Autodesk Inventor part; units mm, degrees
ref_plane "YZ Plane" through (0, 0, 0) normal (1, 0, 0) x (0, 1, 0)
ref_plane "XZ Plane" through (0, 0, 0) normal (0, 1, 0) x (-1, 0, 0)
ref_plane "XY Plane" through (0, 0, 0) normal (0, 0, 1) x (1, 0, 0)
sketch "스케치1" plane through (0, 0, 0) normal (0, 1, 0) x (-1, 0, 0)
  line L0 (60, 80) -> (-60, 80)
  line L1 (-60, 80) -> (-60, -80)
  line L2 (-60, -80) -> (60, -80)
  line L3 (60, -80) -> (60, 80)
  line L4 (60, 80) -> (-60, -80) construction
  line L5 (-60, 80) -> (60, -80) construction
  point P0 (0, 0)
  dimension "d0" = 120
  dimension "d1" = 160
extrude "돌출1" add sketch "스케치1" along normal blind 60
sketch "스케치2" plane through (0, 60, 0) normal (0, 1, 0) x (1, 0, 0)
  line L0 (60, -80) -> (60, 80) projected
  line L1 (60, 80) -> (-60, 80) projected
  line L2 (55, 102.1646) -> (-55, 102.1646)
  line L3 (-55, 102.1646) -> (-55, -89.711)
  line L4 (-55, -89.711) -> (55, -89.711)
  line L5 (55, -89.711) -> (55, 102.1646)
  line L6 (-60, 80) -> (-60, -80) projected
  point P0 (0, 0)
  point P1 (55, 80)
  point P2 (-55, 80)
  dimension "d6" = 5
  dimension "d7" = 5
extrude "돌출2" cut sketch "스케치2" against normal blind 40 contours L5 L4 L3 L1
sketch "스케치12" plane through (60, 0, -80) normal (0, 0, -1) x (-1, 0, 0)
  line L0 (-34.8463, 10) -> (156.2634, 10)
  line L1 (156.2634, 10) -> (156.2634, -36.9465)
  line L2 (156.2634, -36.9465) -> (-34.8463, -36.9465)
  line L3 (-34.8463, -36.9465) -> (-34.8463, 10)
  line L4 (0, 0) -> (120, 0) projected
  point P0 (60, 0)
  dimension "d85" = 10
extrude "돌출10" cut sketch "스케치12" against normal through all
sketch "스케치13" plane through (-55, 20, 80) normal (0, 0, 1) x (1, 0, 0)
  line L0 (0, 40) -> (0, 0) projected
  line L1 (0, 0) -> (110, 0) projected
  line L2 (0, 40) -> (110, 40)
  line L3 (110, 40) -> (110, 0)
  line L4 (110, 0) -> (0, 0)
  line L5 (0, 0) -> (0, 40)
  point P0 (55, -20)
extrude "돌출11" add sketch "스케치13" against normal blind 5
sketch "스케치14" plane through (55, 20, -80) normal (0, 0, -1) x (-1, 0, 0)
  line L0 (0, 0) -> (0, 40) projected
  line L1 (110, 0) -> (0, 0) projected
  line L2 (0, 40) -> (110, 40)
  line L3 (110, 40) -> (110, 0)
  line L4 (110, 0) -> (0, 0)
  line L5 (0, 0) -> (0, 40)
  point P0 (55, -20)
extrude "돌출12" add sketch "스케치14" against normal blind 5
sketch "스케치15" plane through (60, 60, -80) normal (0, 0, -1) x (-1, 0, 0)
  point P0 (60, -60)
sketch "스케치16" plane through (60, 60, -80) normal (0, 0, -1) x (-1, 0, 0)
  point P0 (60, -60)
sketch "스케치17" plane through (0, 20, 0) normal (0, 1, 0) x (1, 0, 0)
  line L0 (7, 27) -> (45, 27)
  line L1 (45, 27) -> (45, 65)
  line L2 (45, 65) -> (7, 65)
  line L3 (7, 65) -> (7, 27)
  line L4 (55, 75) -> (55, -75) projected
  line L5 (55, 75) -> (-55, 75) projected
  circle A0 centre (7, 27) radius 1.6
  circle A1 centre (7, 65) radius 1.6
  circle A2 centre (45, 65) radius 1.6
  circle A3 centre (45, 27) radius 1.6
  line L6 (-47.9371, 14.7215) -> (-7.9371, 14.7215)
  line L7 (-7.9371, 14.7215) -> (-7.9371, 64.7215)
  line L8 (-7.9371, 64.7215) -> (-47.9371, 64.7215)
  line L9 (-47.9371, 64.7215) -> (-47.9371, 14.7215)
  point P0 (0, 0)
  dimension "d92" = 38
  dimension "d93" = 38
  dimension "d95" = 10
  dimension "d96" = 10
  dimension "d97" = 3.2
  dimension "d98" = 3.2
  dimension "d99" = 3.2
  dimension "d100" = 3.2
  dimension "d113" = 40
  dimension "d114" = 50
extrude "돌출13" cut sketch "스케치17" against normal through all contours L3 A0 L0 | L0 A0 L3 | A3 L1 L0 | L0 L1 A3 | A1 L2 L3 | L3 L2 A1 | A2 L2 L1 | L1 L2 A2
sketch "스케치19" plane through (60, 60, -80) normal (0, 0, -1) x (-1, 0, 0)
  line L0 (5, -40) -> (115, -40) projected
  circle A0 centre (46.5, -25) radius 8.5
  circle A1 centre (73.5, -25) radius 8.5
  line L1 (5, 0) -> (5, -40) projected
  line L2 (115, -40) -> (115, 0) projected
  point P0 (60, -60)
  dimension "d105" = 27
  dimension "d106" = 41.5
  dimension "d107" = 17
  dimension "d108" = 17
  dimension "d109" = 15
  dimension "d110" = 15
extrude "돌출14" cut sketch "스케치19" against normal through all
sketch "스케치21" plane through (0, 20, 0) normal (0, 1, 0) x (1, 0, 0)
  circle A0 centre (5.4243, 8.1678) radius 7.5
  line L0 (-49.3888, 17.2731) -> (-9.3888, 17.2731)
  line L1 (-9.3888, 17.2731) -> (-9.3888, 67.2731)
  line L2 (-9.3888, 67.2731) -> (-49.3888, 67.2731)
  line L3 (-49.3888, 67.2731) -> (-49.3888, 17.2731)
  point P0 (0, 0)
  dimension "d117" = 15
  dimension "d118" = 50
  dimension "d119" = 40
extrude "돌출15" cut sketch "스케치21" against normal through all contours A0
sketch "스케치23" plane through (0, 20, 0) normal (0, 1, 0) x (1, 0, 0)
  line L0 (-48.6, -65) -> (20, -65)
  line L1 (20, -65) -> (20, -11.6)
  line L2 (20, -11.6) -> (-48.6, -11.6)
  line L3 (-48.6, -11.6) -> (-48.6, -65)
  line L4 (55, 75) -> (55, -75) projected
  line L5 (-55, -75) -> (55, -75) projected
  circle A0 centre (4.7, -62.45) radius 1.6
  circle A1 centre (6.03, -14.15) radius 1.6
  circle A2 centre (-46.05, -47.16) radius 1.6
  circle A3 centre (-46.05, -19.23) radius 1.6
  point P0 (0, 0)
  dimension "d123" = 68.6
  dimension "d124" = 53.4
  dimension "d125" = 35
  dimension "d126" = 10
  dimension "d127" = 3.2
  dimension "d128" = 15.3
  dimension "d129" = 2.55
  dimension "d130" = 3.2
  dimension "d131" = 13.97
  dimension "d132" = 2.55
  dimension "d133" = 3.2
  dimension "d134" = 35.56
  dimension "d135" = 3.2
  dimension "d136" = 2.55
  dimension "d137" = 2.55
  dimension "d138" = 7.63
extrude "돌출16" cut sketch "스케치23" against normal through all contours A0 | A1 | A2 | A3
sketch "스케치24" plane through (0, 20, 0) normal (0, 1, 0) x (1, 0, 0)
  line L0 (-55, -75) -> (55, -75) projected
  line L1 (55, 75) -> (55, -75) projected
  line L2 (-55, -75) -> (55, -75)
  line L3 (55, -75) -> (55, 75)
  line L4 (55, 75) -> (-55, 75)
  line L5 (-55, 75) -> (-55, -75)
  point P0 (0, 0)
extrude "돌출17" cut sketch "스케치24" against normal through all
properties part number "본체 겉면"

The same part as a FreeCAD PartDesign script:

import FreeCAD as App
import Part
import Sketcher

V = App.Vector


def add_polygon(sketch, points):
    """Adds a closed chain of lines whose ends are joined by coincident constraints."""
    first, n = sketch.GeometryCount, len(points)
    for a, b in zip(points, points[1:] + points[:1]):
        sketch.addGeometry(Part.LineSegment(App.Vector(*a, 0), App.Vector(*b, 0)), False)
    for i in range(n):
        sketch.addConstraint(Sketcher.Constraint("Coincident", first + i, 2, first + (i + 1) % n, 1))

doc = App.newDocument("Part")
body = doc.addObject("PartDesign::Body", "Body")

# Sketch on XZ plane
sketch1 = body.newObject("Sketcher::SketchObject", "Sketch")
sketch1.AttachmentSupport = (doc.getObject("XZ_Plane"), [""])
sketch1.MapMode = "FlatFace"
add_polygon(sketch1, [(-60, -80), (-60, 80), (60, 80), (60, -80)])  # lines 0-3
sketch1.addConstraint(Sketcher.Constraint("Vertical", 0))
sketch1.addConstraint(Sketcher.Constraint("Horizontal", 1))
sketch1.addConstraint(Sketcher.Constraint("Vertical", 2))
sketch1.addConstraint(Sketcher.Constraint("Horizontal", 3))
sketch1.addConstraint(Sketcher.Constraint("Symmetric", 0, 2, 2, 2, -1, 1))
sketch1.addConstraint(Sketcher.Constraint("DistanceX", 1, 1, 1, 2, 120.0))
sketch1.addConstraint(Sketcher.Constraint("DistanceY", 0, 1, 0, 2, 160.0))
pad1 = body.newObject("PartDesign::Pad", "Pad")
pad1.Profile = sketch1
pad1.Length = 60
pad1.Reversed = True

# Sketch on XZ plane
sketch2 = body.newObject("Sketcher::SketchObject", "Sketch001")
sketch2.AttachmentSupport = (doc.getObject("XZ_Plane"), [""])
sketch2.MapMode = "FlatFace"
sketch2.AttachmentOffset = App.Placement(V(0, 0, -60), App.Rotation())
add_polygon(sketch2, [(55, 90), (55, -80), (-55, -80), (-55, 90)])  # lines 0-3
sketch2.addConstraint(Sketcher.Constraint("Vertical", 0))
sketch2.addConstraint(Sketcher.Constraint("Horizontal", 1))
sketch2.addConstraint(Sketcher.Constraint("Vertical", 2))
sketch2.addConstraint(Sketcher.Constraint("Horizontal", 3))
sketch2.addConstraint(Sketcher.Constraint("DistanceX", 1, 2, 1, 1, 110.0))
sketch2.addConstraint(Sketcher.Constraint("DistanceX", -1, 1, 0, 2, 55.0))
sketch2.addConstraint(Sketcher.Constraint("DistanceY", 0, 2, -1, 1, 80.0))
sketch2.addConstraint(Sketcher.Constraint("DistanceY", 0, 2, 0, 1, 169.711))
pocket1 = body.newObject("PartDesign::Pocket", "Pocket")
pocket1.Profile = sketch2
pocket1.Length = 40
pocket1.Reversed = True

# Sketch on XY plane
sketch3 = body.newObject("Sketcher::SketchObject", "Sketch002")
sketch3.AttachmentSupport = (doc.getObject("XY_Plane"), [""])
sketch3.MapMode = "FlatFace"
sketch3.AttachmentOffset = App.Placement(V(0, 0, -80), App.Rotation())
add_polygon(sketch3, [(-96, 10), (95, 10), (95, -37), (-96, -37)])  # lines 0-3
sketch3.addConstraint(Sketcher.Constraint("Horizontal", 0))
sketch3.addConstraint(Sketcher.Constraint("Vertical", 1))
sketch3.addConstraint(Sketcher.Constraint("Horizontal", 2))
sketch3.addConstraint(Sketcher.Constraint("Vertical", 3))
sketch3.addConstraint(Sketcher.Constraint("DistanceY", -1, 1, 0, 2, 10.0))
sketch3.addConstraint(Sketcher.Constraint("DistanceX", 0, 1, 0, 2, 191.1097))
sketch3.addConstraint(Sketcher.Constraint("DistanceY", 1, 2, 1, 1, 46.9465))
sketch3.addConstraint(Sketcher.Constraint("DistanceX", -1, 1, 0, 2, 94.8463))
pocket2 = body.newObject("PartDesign::Pocket", "Pocket001")
pocket2.Profile = sketch3
pocket2.Type = "ThroughAll"
pocket2.Reversed = True

# Sketch on XY plane
sketch4 = body.newObject("Sketcher::SketchObject", "Sketch003")
sketch4.AttachmentSupport = (doc.getObject("XY_Plane"), [""])
sketch4.MapMode = "FlatFace"
sketch4.AttachmentOffset = App.Placement(V(0, 0, 80), App.Rotation())
add_polygon(sketch4, [(55, 60), (-55, 60), (-55, 20), (55, 20)])  # lines 0-3
sketch4.addConstraint(Sketcher.Constraint("Horizontal", 0))
sketch4.addConstraint(Sketcher.Constraint("Vertical", 1))
sketch4.addConstraint(Sketcher.Constraint("Horizontal", 2))
sketch4.addConstraint(Sketcher.Constraint("Vertical", 3))
sketch4.addConstraint(Sketcher.Constraint("DistanceX", 0, 2, 0, 1, 110.0))
sketch4.addConstraint(Sketcher.Constraint("DistanceY", 1, 2, 1, 1, 40.0))
sketch4.addConstraint(Sketcher.Constraint("DistanceX", 0, 2, -1, 1, 55.0))
sketch4.addConstraint(Sketcher.Constraint("DistanceY", -1, 1, 0, 2, 60.0))
pad2 = body.newObject("PartDesign::Pad", "Pad001")
pad2.Profile = sketch4
pad2.Length = 5
pad2.Reversed = True

# Sketch on XY plane
sketch5 = body.newObject("Sketcher::SketchObject", "Sketch004")
sketch5.AttachmentSupport = (doc.getObject("XY_Plane"), [""])
sketch5.MapMode = "FlatFace"
sketch5.AttachmentOffset = App.Placement(V(0, 0, -80), App.Rotation())
add_polygon(sketch5, [(55, 60), (55, 20), (-55, 20), (-55, 60)])  # lines 0-3
sketch5.addConstraint(Sketcher.Constraint("Vertical", 0))
sketch5.addConstraint(Sketcher.Constraint("Horizontal", 1))
sketch5.addConstraint(Sketcher.Constraint("Vertical", 2))
sketch5.addConstraint(Sketcher.Constraint("Horizontal", 3))
sketch5.addConstraint(Sketcher.Constraint("DistanceX", 1, 2, 1, 1, 110.0))
sketch5.addConstraint(Sketcher.Constraint("DistanceY", 0, 2, 0, 1, 40.0))
sketch5.addConstraint(Sketcher.Constraint("DistanceX", -1, 1, 0, 2, 55.0))
sketch5.addConstraint(Sketcher.Constraint("DistanceY", -1, 1, 0, 2, 20.0))
pad3 = body.newObject("PartDesign::Pad", "Pad002")
pad3.Profile = sketch5
pad3.Length = 5

# Sketch on XZ plane
sketch6 = body.newObject("Sketcher::SketchObject", "Sketch005")
sketch6.AttachmentSupport = (doc.getObject("XZ_Plane"), [""])
sketch6.MapMode = "FlatFace"
sketch6.AttachmentOffset = App.Placement(V(0, 0, -20), App.Rotation())
sketch6.addGeometry(Part.Circle(V(7, -27, 0), V(0, 0, 1), 1.6), False)
sketch6.addGeometry(Part.Circle(V(45, -27, 0), V(0, 0, 1), 1.6), False)
sketch6.addGeometry(Part.Circle(V(7, -65, 0), V(0, 0, 1), 1.6), False)
sketch6.addGeometry(Part.Circle(V(45, -65, 0), V(0, 0, 1), 1.6), False)
sketch6.addConstraint(Sketcher.Constraint("Equal", 0, 1))
sketch6.addConstraint(Sketcher.Constraint("Equal", 1, 2))
sketch6.addConstraint(Sketcher.Constraint("Equal", 2, 3))
sketch6.addConstraint(Sketcher.Constraint("Horizontal", 0, 3, 1, 3))
sketch6.addConstraint(Sketcher.Constraint("Horizontal", 2, 3, 3, 3))
sketch6.addConstraint(Sketcher.Constraint("Vertical", 0, 3, 2, 3))
sketch6.addConstraint(Sketcher.Constraint("Vertical", 1, 3, 3, 3))
sketch6.addConstraint(Sketcher.Constraint("Diameter", 0, 3.2))
sketch6.addConstraint(Sketcher.Constraint("DistanceX", 0, 3, 1, 3, 38.0))
sketch6.addConstraint(Sketcher.Constraint("DistanceY", 2, 3, 0, 3, 38.0))
sketch6.addConstraint(Sketcher.Constraint("DistanceX", -1, 1, 0, 3, 7.0))
sketch6.addConstraint(Sketcher.Constraint("DistanceY", 0, 3, -1, 1, 27.0))
pocket3 = body.newObject("PartDesign::Pocket", "Pocket002")
pocket3.Profile = sketch6
pocket3.Type = "ThroughAll"
pocket3.Reversed = True

# Sketch on XY plane
sketch7 = body.newObject("Sketcher::SketchObject", "Sketch006")
sketch7.AttachmentSupport = (doc.getObject("XY_Plane"), [""])
sketch7.MapMode = "FlatFace"
sketch7.AttachmentOffset = App.Placement(V(0, 0, -80), App.Rotation())
sketch7.addGeometry(Part.Circle(V(14, 35, 0), V(0, 0, 1), 8), False)
sketch7.addGeometry(Part.Circle(V(-14, 35, 0), V(0, 0, 1), 8), False)
sketch7.addConstraint(Sketcher.Constraint("Equal", 0, 1))
sketch7.addConstraint(Sketcher.Constraint("Symmetric", 0, 3, 1, 3, -2))
sketch7.addConstraint(Sketcher.Constraint("Diameter", 0, 17.0))
sketch7.addConstraint(Sketcher.Constraint("DistanceX", 1, 3, 0, 3, 27.0))
sketch7.addConstraint(Sketcher.Constraint("DistanceY", -1, 1, 0, 3, 35.0))
pocket4 = body.newObject("PartDesign::Pocket", "Pocket003")
pocket4.Profile = sketch7
pocket4.Type = "ThroughAll"
pocket4.Reversed = True

# Sketch on XZ plane
sketch8 = body.newObject("Sketcher::SketchObject", "Sketch007")
sketch8.AttachmentSupport = (doc.getObject("XZ_Plane"), [""])
sketch8.MapMode = "FlatFace"
sketch8.AttachmentOffset = App.Placement(V(0, 0, -20), App.Rotation())
sketch8.addGeometry(Part.Circle(V(5, -8, 0), V(0, 0, 1), 8), False)
sketch8.addConstraint(Sketcher.Constraint("Diameter", 0, 15.0))
sketch8.addConstraint(Sketcher.Constraint("DistanceX", -1, 1, 0, 3, 5.4243))
sketch8.addConstraint(Sketcher.Constraint("DistanceY", 0, 3, -1, 1, 8.1678))
pocket5 = body.newObject("PartDesign::Pocket", "Pocket004")
pocket5.Profile = sketch8
pocket5.Type = "ThroughAll"
pocket5.Reversed = True

# Sketch on XZ plane
sketch9 = body.newObject("Sketcher::SketchObject", "Sketch008")
sketch9.AttachmentSupport = (doc.getObject("XZ_Plane"), [""])
sketch9.MapMode = "FlatFace"
sketch9.AttachmentOffset = App.Placement(V(0, 0, -20), App.Rotation())
sketch9.addGeometry(Part.Circle(V(4.7, 62.5, 0), V(0, 0, 1), 1.6), False)
sketch9.addGeometry(Part.Circle(V(6, 14.2, 0), V(0, 0, 1), 1.6), False)
sketch9.addGeometry(Part.Circle(V(-46, 47.2, 0), V(0, 0, 1), 1.6), False)
sketch9.addGeometry(Part.Circle(V(-46, 19.2, 0), V(0, 0, 1), 1.6), False)
sketch9.addConstraint(Sketcher.Constraint("Equal", 0, 1))
sketch9.addConstraint(Sketcher.Constraint("Equal", 1, 2))
sketch9.addConstraint(Sketcher.Constraint("Equal", 2, 3))
sketch9.addConstraint(Sketcher.Constraint("Vertical", 2, 3, 3, 3))
sketch9.addConstraint(Sketcher.Constraint("Diameter", 0, 3.2))
sketch9.addConstraint(Sketcher.Constraint("DistanceX", -1, 1, 0, 3, 4.7))
sketch9.addConstraint(Sketcher.Constraint("DistanceY", 1, 3, 0, 3, 48.3))
sketch9.addConstraint(Sketcher.Constraint("DistanceY", -1, 1, 0, 3, 62.45))
sketch9.addConstraint(Sketcher.Constraint("DistanceX", -1, 1, 1, 3, 6.03))
sketch9.addConstraint(Sketcher.Constraint("DistanceX", 2, 3, -1, 1, 46.05))
sketch9.addConstraint(Sketcher.Constraint("DistanceY", -1, 1, 2, 3, 47.16))
sketch9.addConstraint(Sketcher.Constraint("DistanceY", -1, 1, 3, 3, 19.23))
pocket6 = body.newObject("PartDesign::Pocket", "Pocket005")
pocket6.Profile = sketch9
pocket6.Type = "ThroughAll"
pocket6.Reversed = True

# Sketch on XZ plane
sketch10 = body.newObject("Sketcher::SketchObject", "Sketch009")
sketch10.AttachmentSupport = (doc.getObject("XZ_Plane"), [""])
sketch10.MapMode = "FlatFace"
sketch10.AttachmentOffset = App.Placement(V(0, 0, -20), App.Rotation())
add_polygon(sketch10, [(-55, -75), (-55, 75), (55, 75), (55, -75)])  # lines 0-3
sketch10.addConstraint(Sketcher.Constraint("Vertical", 0))
sketch10.addConstraint(Sketcher.Constraint("Horizontal", 1))
sketch10.addConstraint(Sketcher.Constraint("Vertical", 2))
sketch10.addConstraint(Sketcher.Constraint("Horizontal", 3))
sketch10.addConstraint(Sketcher.Constraint("Symmetric", 0, 2, 2, 2, -1, 1))
sketch10.addConstraint(Sketcher.Constraint("DistanceX", 1, 1, 1, 2, 110.0))
sketch10.addConstraint(Sketcher.Constraint("DistanceY", 0, 1, 0, 2, 150.0))
pocket7 = body.newObject("PartDesign::Pocket", "Pocket006")
pocket7.Profile = sketch10
pocket7.Type = "ThroughAll"
pocket7.Reversed = True

doc.recompute()
